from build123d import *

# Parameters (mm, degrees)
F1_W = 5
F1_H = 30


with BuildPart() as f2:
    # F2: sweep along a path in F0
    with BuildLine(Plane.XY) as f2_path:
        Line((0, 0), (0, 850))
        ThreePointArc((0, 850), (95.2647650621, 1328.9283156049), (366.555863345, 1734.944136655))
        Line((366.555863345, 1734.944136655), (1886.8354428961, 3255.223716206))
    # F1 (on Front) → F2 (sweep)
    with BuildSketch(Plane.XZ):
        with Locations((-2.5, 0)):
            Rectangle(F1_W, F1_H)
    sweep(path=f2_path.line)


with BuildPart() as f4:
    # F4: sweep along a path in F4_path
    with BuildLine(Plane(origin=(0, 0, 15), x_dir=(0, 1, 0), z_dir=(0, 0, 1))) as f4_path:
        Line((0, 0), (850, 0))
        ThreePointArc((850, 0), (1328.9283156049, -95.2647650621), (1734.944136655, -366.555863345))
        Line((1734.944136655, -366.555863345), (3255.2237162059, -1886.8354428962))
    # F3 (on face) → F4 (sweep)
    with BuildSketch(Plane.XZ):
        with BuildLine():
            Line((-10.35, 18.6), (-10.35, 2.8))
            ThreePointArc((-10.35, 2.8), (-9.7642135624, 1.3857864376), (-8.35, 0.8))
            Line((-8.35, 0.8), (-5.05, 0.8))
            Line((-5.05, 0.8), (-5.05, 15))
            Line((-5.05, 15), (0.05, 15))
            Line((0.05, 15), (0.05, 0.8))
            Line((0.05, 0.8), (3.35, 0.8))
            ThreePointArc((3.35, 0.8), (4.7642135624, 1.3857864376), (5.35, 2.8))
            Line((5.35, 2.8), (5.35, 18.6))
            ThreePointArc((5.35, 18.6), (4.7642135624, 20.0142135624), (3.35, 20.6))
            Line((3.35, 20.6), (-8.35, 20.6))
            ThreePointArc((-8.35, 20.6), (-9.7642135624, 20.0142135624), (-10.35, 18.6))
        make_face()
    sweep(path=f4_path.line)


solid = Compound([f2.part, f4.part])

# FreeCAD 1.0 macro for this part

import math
import FreeCAD as App
import Part
import Sketcher
Q = App.Units.Quantity


def add_polygon(sketch, points):
    """Adds a closed chain of lines whose ends are joined by coincident constraints."""
    first, n = sketch.GeometryCount, len(points)
    for a, b in zip(points, points[1:] + points[:1]):
        sketch.addGeometry(Part.LineSegment(App.Vector(*a, 0), App.Vector(*b, 0)), False)
    for i in range(n):
        sketch.addConstraint(Sketcher.Constraint("Coincident", first + i, 2, first + (i + 1) % n, 1))

doc = App.newDocument("Part")
params = doc.addObject("Spreadsheet::Sheet", "Params")
for row, (alias, value) in enumerate([
    ("sketch1_width", "5 mm"),
    ("sketch1_height", "30 mm"),
    ("sketch2_radius", "1251.5 mm"),
    ("sketch2_height", "850 mm"),
    ("sketch2_length", "2150 mm"),
    ("sketch3_radius", "2 mm"),
    ("sketch3_width", "3.3 mm"),
    ("sketch3_width2", "5.1 mm"),
    ("sketch3_height", "15.8 mm"),
    ("sketch3_height2", "14.2 mm"),
    ("sketch4_radius", "1251.5 mm"),
    ("sketch4_height", "850 mm"),
    ("sketch4_length", "2150 mm"),
], start=1):
    params.set(f"A{row}", alias)
    params.set(f"B{row}", "=" + value)
    params.setAlias(f"B{row}", alias)

body = doc.addObject("PartDesign::Body", "Body")

sketch1 = body.newObject("Sketcher::SketchObject", "Sketch")
sketch1.AttachmentSupport = (doc.getObject("XZ_Plane"), [""])
sketch1.MapMode = "FlatFace"
add_polygon(sketch1, [(-5, 15), (-5, -15), (0, -15), (0, 15)])
sketch1.addConstraint(Sketcher.Constraint("Vertical", 0))
sketch1.addConstraint(Sketcher.Constraint("Horizontal", 1))
sketch1.addConstraint(Sketcher.Constraint("Vertical", 2))
sketch1.addConstraint(Sketcher.Constraint("Horizontal", 3))
sketch1.addConstraint(Sketcher.Constraint("Symmetric", 1, 2, 2, 2, -1, 1))
sketch1.addConstraint(Sketcher.Constraint("DistanceX", 1, 1, 1, 2, Q("5 mm")))
sketch1.addConstraint(Sketcher.Constraint("DistanceY", 0, 2, 0, 1, Q("30 mm")))
sketch1.setExpression("Constraints[9]", "Params.sketch1_width")
sketch1.setExpression("Constraints[10]", "Params.sketch1_height")

sketch2 = body.newObject("Sketcher::SketchObject", "Sketch001")
sketch2.AttachmentSupport = (doc.getObject("XY_Plane"), [""])
sketch2.MapMode = "FlatFace"
sketch2.addGeometry(Part.LineSegment(App.Vector(0, 0, 0), App.Vector(0, 850, 0)), False)
sketch2.addGeometry(Part.ArcOfCircle(Part.Circle(App.Vector(1251.5, 850, 0), App.Vector(0, 0, 1), 1251.5), math.radians(135), math.radians(180)), False)
sketch2.addGeometry(Part.LineSegment(App.Vector(366.555863, 1734.944137, 0), App.Vector(1886.835443, 3255.223716, 0)), False)
sketch2.addConstraint(Sketcher.Constraint("Coincident", 0, 2, 1, 2))
sketch2.addConstraint(Sketcher.Constraint("Coincident", 1, 1, 2, 1))
sketch2.addConstraint(Sketcher.Constraint("Vertical", 0))
sketch2.addConstraint(Sketcher.Constraint("Coincident", 0, 1, -1, 1))
sketch2.addConstraint(Sketcher.Constraint("Horizontal", 1, 3, 0, 2))
sketch2.addConstraint(Sketcher.Constraint("Radius", 1, Q("1251.5 mm")))
sketch2.addConstraint(Sketcher.Constraint("DistanceY", 0, 1, 0, 2, Q("850 mm")))
sketch2.addConstraint(Sketcher.Constraint("Angle", 2, Q("45 deg")))
sketch2.addConstraint(Sketcher.Constraint("Distance", 2, Q("2150 mm")))
sketch2.addConstraint(Sketcher.Constraint("DistanceX", -1, 1, 2, 2, Q("1886.835443 mm")))
sketch2.setExpression("Constraints[5]", "Params.sketch2_radius")
sketch2.setExpression("Constraints[6]", "Params.sketch2_height")
sketch2.setExpression("Constraints[8]", "Params.sketch2_length")
doc.recompute()

additivepipe = body.newObject("PartDesign::AdditivePipe", "AdditivePipe")
additivepipe.Profile = sketch1
additivepipe.Spine = (sketch2, ["Edge1", "Edge2", "Edge3"])
body2 = doc.addObject("PartDesign::Body", "Body001")

sketch3 = body2.newObject("Sketcher::SketchObject", "Sketch002")
sketch3.AttachmentSupport = (doc.getObject("XZ_Plane001"), [""])
sketch3.MapMode = "FlatFace"
sketch3.addGeometry(Part.LineSegment(App.Vector(-10.35, 18.6, 0), App.Vector(-10.35, 2.8, 0)), False)
sketch3.addGeometry(Part.ArcOfCircle(Part.Circle(App.Vector(-8.35, 2.8, 0), App.Vector(0, 0, 1), 2), math.radians(180), math.radians(270)), False)
sketch3.addGeometry(Part.LineSegment(App.Vector(-8.35, 0.8, 0), App.Vector(-5.05, 0.8, 0)), False)
sketch3.addGeometry(Part.LineSegment(App.Vector(-5.05, 0.8, 0), App.Vector(-5.05, 15, 0)), False)
sketch3.addGeometry(Part.LineSegment(App.Vector(-5.05, 15, 0), App.Vector(0.05, 15, 0)), False)
sketch3.addGeometry(Part.LineSegment(App.Vector(0.05, 15, 0), App.Vector(0.05, 0.8, 0)), False)
sketch3.addGeometry(Part.LineSegment(App.Vector(0.05, 0.8, 0), App.Vector(3.35, 0.8, 0)), False)
sketch3.addGeometry(Part.ArcOfCircle(Part.Circle(App.Vector(3.35, 2.8, 0), App.Vector(0, 0, 1), 2), math.radians(-90), math.radians(0)), False)
sketch3.addGeometry(Part.LineSegment(App.Vector(5.35, 2.8, 0), App.Vector(5.35, 18.6, 0)), False)
sketch3.addGeometry(Part.ArcOfCircle(Part.Circle(App.Vector(3.35, 18.6, 0), App.Vector(0, 0, 1), 2), math.radians(0), math.radians(90)), False)
sketch3.addGeometry(Part.LineSegment(App.Vector(3.35, 20.6, 0), App.Vector(-8.35, 20.6, 0)), False)
sketch3.addGeometry(Part.ArcOfCircle(Part.Circle(App.Vector(-8.35, 18.6, 0), App.Vector(0, 0, 1), 2), math.radians(90), math.radians(180)), False)
sketch3.addConstraint(Sketcher.Constraint("Tangent", 0, 2, 1, 1))
sketch3.addConstraint(Sketcher.Constraint("Tangent", 1, 2, 2, 1))
sketch3.addConstraint(Sketcher.Constraint("Coincident", 2, 2, 3, 1))
sketch3.addConstraint(Sketcher.Constraint("Coincident", 3, 2, 4, 1))
sketch3.addConstraint(Sketcher.Constraint("Coincident", 4, 2, 5, 1))
sketch3.addConstraint(Sketcher.Constraint("Coincident", 5, 2, 6, 1))
sketch3.addConstraint(Sketcher.Constraint("Tangent", 6, 2, 7, 1))
sketch3.addConstraint(Sketcher.Constraint("Tangent", 7, 2, 8, 1))
sketch3.addConstraint(Sketcher.Constraint("Tangent", 8, 2, 9, 1))
sketch3.addConstraint(Sketcher.Constraint("Tangent", 9, 2, 10, 1))
sketch3.addConstraint(Sketcher.Constraint("Tangent", 10, 2, 11, 1))
sketch3.addConstraint(Sketcher.Constraint("Tangent", 11, 2, 0, 1))
sketch3.addConstraint(Sketcher.Constraint("Vertical", 0))
sketch3.addConstraint(Sketcher.Constraint("Horizontal", 2))
sketch3.addConstraint(Sketcher.Constraint("Vertical", 3))
sketch3.addConstraint(Sketcher.Constraint("Horizontal", 4))
sketch3.addConstraint(Sketcher.Constraint("Vertical", 5))
sketch3.addConstraint(Sketcher.Constraint("Horizontal", 6))
sketch3.addConstraint(Sketcher.Constraint("Vertical", 8))
sketch3.addConstraint(Sketcher.Constraint("Horizontal", 10))
sketch3.addConstraint(Sketcher.Constraint("Equal", 1, 7))
sketch3.addConstraint(Sketcher.Constraint("Equal", 7, 9))
sketch3.addConstraint(Sketcher.Constraint("Equal", 9, 11))
sketch3.addConstraint(Sketcher.Constraint("Horizontal", 1, 3, 7, 3))
sketch3.addConstraint(Sketcher.Constraint("Equal", 2, 6))
sketch3.addConstraint(Sketcher.Constraint("Radius", 1, Q("2 mm")))
sketch3.addConstraint(Sketcher.Constraint("DistanceX", 2, 1, 2, 2, Q("3.3 mm")))
sketch3.addConstraint(Sketcher.Constraint("DistanceX", 4, 1, 4, 2, Q("5.1 mm")))
sketch3.addConstraint(Sketcher.Constraint("DistanceY", 0, 2, 0, 1, Q("15.8 mm")))
sketch3.addConstraint(Sketcher.Constraint("DistanceY", 3, 1, 3, 2, Q("14.2 mm")))
sketch3.addConstraint(Sketcher.Constraint("DistanceY", -1, 1, 3, 2, Q("15 mm")))
sketch3.addConstraint(Sketcher.Constraint("DistanceX", 1, 3, -1, 1, Q("8.35 mm")))
sketch3.setExpression("Constraints[25]", "Params.sketch3_radius")
sketch3.setExpression("Constraints[26]", "Params.sketch3_width")
sketch3.setExpression("Constraints[27]", "Params.sketch3_width2")
sketch3.setExpression("Constraints[28]", "Params.sketch3_height")
sketch3.setExpression("Constraints[29]", "Params.sketch3_height2")

sketch4 = body2.newObject("Sketcher::SketchObject", "Sketch003")
sketch4.AttachmentSupport = (doc.getObject("XY_Plane001"), [""])
sketch4.MapMode = "FlatFace"
sketch4.AttachmentOffset = App.Placement(App.Vector(0, 0, 15), App.Rotation())
sketch4.addGeometry(Part.LineSegment(App.Vector(0, 0, 0), App.Vector(0, 850, 0)), False)
sketch4.addGeometry(Part.ArcOfCircle(Part.Circle(App.Vector(1251.5, 850, 0), App.Vector(0, 0, 1), 1251.5), math.radians(135), math.radians(180)), False)
sketch4.addGeometry(Part.LineSegment(App.Vector(366.555863, 1734.944137, 0), App.Vector(1886.835443, 3255.223716, 0)), False)
sketch4.addConstraint(Sketcher.Constraint("Coincident", 0, 2, 1, 2))
sketch4.addConstraint(Sketcher.Constraint("Coincident", 1, 1, 2, 1))
sketch4.addConstraint(Sketcher.Constraint("Vertical", 0))
sketch4.addConstraint(Sketcher.Constraint("Coincident", 0, 1, -1, 1))
sketch4.addConstraint(Sketcher.Constraint("Horizontal", 1, 3, 0, 2))
sketch4.addConstraint(Sketcher.Constraint("Radius", 1, Q("1251.5 mm")))
sketch4.addConstraint(Sketcher.Constraint("DistanceY", 0, 1, 0, 2, Q("850 mm")))
sketch4.addConstraint(Sketcher.Constraint("Angle", 2, Q("45 deg")))
sketch4.addConstraint(Sketcher.Constraint("Distance", 2, Q("2150 mm")))
sketch4.addConstraint(Sketcher.Constraint("DistanceX", -1, 1, 2, 2, Q("1886.835443 mm")))
sketch4.setExpression("Constraints[5]", "Params.sketch4_radius")
sketch4.setExpression("Constraints[6]", "Params.sketch4_height")
sketch4.setExpression("Constraints[8]", "Params.sketch4_length")
doc.recompute()

additivepipe2 = body2.newObject("PartDesign::AdditivePipe", "AdditivePipe001")
additivepipe2.Profile = sketch3
additivepipe2.Spine = (sketch4, ["Edge1", "Edge2", "Edge3"])

doc.recompute()
